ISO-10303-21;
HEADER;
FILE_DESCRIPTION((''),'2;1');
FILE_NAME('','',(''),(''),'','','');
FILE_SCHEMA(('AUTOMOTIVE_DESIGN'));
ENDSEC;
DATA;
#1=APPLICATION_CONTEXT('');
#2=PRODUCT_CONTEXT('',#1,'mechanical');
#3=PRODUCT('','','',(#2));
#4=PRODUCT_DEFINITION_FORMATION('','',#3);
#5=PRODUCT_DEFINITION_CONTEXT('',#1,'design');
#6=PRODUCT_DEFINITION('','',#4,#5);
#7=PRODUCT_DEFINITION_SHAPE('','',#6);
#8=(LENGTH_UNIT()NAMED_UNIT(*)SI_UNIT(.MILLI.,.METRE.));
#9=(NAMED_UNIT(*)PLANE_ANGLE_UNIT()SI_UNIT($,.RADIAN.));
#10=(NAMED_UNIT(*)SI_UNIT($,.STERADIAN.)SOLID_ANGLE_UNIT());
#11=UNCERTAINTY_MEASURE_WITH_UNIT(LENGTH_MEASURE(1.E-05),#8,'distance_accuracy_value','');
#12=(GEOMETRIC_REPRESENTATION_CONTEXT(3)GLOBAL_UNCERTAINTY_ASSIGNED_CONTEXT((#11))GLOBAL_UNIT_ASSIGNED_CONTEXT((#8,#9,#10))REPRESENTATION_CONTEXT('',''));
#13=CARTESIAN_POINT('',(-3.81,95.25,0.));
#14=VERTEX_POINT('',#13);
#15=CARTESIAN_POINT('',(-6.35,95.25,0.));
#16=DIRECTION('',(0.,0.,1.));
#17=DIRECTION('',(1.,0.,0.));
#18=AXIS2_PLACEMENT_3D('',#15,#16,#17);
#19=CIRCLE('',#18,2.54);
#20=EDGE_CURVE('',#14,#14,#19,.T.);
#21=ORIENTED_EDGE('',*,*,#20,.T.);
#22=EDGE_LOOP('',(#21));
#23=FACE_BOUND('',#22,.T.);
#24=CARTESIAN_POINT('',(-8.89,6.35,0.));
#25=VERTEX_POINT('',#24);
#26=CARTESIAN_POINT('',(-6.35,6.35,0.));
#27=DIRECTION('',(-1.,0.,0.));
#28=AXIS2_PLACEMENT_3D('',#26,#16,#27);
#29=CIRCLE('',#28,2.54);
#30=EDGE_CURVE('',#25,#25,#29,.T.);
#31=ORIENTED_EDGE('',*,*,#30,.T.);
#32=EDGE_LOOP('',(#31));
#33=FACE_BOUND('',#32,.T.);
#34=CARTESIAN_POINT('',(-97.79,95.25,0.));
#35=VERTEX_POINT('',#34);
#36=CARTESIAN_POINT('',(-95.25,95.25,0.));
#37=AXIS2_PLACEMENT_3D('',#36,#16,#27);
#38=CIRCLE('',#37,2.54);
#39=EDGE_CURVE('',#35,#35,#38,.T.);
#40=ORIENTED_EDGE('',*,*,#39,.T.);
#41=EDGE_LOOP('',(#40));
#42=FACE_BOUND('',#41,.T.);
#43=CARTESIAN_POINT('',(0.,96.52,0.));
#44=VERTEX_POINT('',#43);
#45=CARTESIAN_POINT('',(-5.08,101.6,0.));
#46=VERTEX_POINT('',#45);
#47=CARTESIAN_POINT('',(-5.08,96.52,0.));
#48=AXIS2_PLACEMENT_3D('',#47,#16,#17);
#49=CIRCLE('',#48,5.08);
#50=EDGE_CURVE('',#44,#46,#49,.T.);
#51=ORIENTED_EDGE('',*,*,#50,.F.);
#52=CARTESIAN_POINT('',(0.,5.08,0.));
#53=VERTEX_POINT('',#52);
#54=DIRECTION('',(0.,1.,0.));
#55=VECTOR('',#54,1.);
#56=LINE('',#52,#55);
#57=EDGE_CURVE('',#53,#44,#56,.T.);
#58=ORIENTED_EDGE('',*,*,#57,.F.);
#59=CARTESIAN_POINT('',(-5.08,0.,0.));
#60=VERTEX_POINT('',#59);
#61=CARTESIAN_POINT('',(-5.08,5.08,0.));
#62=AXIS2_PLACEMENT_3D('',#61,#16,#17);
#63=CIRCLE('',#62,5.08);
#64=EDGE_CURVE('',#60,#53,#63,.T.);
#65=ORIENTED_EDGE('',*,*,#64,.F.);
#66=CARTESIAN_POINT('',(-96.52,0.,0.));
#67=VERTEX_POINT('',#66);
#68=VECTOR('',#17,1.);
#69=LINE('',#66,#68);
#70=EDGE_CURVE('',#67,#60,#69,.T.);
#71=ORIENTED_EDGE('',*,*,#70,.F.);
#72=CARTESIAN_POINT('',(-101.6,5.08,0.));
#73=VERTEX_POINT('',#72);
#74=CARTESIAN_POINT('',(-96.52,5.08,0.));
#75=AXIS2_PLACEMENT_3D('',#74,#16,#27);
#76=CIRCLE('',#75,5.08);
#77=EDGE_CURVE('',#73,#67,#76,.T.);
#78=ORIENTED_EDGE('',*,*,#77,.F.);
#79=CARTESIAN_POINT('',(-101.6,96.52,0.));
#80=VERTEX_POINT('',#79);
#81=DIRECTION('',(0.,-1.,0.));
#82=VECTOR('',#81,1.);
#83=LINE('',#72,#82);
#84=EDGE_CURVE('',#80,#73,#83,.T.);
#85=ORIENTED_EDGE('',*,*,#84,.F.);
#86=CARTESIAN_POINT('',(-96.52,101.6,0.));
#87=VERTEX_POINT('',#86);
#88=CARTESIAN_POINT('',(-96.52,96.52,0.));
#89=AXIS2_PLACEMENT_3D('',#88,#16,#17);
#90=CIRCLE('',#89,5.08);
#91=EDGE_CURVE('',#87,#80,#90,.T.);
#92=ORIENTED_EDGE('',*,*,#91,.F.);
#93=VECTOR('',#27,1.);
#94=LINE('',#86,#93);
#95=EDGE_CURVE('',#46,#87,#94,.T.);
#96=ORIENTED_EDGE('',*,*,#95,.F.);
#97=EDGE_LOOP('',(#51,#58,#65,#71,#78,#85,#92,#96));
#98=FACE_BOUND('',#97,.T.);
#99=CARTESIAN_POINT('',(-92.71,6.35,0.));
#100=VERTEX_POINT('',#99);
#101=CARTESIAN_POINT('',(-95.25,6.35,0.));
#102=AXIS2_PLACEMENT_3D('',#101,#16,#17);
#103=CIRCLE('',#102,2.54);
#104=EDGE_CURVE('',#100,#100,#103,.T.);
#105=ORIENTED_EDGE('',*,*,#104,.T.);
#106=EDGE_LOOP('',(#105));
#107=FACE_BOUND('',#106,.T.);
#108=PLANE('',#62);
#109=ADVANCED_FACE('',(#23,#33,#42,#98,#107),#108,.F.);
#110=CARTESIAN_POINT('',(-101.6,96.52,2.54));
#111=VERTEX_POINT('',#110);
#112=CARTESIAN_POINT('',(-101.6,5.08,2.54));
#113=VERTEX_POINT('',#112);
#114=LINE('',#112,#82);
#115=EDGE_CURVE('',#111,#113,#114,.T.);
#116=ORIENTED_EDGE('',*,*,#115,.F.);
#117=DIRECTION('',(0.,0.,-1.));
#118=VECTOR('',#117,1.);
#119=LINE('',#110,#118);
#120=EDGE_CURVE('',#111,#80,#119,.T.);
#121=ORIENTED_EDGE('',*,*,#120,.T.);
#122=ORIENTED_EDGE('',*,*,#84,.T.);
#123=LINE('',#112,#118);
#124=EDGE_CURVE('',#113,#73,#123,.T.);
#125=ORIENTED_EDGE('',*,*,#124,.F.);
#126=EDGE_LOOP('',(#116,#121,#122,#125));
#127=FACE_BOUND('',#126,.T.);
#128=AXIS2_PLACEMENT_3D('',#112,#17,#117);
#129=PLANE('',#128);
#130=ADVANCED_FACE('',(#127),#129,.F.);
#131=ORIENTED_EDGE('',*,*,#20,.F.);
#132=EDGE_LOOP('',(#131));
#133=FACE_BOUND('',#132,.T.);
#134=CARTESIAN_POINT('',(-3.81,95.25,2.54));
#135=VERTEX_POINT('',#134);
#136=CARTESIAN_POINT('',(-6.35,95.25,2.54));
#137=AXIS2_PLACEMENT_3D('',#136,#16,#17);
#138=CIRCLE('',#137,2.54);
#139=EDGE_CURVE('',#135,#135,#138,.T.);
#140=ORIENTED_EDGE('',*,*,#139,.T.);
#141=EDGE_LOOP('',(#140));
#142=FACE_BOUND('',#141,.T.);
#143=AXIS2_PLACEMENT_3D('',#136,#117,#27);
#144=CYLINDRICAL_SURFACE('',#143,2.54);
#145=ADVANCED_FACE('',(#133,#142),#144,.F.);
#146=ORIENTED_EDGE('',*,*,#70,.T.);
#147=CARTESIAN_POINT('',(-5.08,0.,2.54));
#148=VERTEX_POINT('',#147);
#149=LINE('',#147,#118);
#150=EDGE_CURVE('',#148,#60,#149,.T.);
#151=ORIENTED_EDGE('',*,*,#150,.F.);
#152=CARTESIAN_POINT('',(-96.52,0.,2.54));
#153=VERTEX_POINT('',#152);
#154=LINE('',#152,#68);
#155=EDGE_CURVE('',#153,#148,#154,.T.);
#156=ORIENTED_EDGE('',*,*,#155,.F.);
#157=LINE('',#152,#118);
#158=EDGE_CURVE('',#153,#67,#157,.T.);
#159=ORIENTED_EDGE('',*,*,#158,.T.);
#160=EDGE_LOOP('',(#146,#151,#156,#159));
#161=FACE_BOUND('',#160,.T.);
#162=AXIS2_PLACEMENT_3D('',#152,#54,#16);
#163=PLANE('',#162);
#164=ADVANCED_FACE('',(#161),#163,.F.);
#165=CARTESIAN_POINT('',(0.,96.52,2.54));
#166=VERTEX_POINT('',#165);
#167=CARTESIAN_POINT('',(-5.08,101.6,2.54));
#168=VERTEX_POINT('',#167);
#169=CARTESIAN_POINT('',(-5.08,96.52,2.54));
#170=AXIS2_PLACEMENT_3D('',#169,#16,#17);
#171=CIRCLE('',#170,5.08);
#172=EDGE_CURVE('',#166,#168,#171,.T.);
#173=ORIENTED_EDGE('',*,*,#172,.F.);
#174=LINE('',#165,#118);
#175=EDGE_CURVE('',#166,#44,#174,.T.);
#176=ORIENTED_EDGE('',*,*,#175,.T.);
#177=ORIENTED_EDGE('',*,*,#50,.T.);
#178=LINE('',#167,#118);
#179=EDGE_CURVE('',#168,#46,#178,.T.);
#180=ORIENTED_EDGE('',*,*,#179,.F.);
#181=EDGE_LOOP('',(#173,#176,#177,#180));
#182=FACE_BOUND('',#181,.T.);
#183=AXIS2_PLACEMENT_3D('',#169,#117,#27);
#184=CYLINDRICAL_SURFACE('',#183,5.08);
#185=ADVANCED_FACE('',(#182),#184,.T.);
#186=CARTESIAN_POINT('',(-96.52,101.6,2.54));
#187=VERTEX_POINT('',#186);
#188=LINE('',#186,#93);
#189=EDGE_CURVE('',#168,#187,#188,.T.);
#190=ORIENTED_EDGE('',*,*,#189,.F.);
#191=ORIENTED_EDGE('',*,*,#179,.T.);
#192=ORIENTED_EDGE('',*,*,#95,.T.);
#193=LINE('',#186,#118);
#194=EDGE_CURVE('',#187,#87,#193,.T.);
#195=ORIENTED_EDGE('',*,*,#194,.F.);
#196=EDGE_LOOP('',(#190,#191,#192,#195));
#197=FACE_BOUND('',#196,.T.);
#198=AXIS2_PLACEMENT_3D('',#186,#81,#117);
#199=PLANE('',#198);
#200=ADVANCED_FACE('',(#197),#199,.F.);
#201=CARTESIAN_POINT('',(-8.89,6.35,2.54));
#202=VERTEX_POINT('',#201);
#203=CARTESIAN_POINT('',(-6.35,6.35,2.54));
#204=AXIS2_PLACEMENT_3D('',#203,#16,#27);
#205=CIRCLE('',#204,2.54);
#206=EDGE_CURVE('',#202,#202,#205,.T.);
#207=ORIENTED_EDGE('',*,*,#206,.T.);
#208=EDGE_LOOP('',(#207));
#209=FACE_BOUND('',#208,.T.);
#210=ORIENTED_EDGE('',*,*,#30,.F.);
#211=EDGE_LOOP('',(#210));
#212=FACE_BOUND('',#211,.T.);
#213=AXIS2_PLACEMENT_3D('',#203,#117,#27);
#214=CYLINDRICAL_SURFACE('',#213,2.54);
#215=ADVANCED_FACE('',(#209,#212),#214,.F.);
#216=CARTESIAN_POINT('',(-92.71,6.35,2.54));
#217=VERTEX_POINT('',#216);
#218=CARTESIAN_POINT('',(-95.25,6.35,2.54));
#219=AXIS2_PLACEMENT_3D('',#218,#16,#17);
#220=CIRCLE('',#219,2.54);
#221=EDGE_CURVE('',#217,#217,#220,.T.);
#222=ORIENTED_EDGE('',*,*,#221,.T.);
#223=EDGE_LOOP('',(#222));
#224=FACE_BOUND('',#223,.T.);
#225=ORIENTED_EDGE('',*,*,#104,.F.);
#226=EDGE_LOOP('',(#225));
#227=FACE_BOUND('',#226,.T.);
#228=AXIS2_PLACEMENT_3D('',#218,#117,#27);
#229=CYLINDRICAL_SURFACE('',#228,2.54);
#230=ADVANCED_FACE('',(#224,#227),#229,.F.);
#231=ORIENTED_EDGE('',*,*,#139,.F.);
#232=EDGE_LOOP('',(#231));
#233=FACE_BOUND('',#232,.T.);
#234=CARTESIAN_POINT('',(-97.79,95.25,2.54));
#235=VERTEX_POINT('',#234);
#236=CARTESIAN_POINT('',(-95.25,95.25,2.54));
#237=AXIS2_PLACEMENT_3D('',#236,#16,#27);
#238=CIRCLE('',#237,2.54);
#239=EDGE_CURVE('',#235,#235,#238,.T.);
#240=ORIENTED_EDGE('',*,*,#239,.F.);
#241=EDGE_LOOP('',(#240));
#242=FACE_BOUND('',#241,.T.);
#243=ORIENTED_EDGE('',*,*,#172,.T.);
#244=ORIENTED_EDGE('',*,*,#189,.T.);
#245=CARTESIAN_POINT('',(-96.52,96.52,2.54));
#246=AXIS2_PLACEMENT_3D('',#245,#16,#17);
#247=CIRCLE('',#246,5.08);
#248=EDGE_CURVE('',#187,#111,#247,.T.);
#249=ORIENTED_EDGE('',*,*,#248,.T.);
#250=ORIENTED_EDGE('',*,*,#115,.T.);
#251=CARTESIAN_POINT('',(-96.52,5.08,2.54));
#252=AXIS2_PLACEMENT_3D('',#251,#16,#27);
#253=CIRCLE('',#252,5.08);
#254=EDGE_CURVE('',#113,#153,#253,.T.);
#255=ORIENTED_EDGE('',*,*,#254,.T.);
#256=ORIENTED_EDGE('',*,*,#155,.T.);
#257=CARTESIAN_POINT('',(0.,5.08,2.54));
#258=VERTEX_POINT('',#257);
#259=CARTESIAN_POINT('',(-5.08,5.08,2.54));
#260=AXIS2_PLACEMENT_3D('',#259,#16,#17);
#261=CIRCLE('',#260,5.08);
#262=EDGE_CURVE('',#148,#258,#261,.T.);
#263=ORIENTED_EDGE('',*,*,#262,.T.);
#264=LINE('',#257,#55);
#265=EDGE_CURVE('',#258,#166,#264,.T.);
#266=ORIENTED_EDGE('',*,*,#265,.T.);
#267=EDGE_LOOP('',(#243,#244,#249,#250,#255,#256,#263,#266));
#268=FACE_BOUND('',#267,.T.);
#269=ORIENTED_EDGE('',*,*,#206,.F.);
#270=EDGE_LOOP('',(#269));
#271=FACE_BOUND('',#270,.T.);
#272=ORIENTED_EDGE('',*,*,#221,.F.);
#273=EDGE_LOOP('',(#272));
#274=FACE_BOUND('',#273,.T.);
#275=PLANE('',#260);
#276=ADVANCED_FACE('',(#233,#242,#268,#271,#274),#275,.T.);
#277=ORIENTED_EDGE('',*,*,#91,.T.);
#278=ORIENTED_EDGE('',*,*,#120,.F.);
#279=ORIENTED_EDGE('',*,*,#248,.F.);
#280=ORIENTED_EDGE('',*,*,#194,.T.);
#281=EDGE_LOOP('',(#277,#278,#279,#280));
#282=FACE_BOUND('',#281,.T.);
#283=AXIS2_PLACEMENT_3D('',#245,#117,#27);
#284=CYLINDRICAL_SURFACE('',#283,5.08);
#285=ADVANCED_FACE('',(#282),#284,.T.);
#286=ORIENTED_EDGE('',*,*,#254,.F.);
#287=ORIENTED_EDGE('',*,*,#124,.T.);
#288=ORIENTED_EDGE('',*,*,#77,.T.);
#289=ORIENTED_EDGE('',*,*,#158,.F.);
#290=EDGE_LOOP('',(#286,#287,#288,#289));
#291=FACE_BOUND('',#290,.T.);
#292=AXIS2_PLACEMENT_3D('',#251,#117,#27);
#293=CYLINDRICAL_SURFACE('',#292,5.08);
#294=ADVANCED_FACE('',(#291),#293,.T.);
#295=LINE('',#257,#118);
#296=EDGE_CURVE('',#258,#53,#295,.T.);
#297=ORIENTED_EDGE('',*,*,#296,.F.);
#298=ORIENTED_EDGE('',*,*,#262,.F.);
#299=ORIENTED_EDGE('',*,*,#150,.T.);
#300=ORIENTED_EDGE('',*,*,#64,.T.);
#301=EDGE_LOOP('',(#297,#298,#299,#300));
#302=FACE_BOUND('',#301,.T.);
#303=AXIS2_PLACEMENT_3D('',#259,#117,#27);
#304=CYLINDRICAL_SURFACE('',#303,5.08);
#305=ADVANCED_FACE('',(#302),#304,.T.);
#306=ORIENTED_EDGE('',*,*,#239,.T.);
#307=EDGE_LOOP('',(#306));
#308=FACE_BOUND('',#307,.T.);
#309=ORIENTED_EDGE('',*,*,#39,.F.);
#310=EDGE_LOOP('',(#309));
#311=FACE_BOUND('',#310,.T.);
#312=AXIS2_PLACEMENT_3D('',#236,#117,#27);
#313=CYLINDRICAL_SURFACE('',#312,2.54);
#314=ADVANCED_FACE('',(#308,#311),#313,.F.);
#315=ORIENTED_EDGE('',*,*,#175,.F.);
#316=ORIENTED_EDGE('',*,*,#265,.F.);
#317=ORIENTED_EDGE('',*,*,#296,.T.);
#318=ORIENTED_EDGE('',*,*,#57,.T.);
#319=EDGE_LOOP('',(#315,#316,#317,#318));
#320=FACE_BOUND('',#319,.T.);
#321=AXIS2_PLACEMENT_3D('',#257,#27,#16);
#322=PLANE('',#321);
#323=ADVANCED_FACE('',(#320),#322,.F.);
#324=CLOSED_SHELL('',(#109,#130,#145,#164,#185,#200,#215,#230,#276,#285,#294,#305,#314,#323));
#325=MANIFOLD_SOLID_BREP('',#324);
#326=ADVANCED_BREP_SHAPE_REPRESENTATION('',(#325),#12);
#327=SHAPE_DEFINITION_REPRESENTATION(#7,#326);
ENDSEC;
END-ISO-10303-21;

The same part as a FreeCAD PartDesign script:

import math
import FreeCAD as App
import Part
import Sketcher

V = App.Vector
Q = App.Units.Quantity

doc = App.newDocument("Part")
params = doc.addObject("Spreadsheet::Sheet", "Params")
for row, (alias, value) in enumerate([
    ("sketch1_radius", "0.2 in"),
    ("sketch1_width", "3.6 in"),
    ("pad1_length", "0.1 in"),
    ("sketch2_diameter", "0.2 in"),
    ("pocket1_length", "0.1 in"),
], start=1):
    params.set(f"A{row}", alias)
    params.set(f"B{row}", "=" + value)
    params.setAlias(f"B{row}", alias)

body = doc.addObject("PartDesign::Body", "Body")

# Sketch on XY plane
sketch1 = body.newObject("Sketcher::SketchObject", "Sketch")
sketch1.AttachmentSupport = (doc.getObject("XY_Plane"), [""])
sketch1.MapMode = "FlatFace"
sketch1.addGeometry([
    Part.LineSegment(V(-97, 0, 0), V(-5, 0, 0)),  # 0
    Part.ArcOfCircle(Part.Circle(V(-5, 5, 0), V(0, 0, 1), 5), math.radians(-90), math.radians(0)),  # 1
    Part.LineSegment(V(0, 5, 0), V(0, 97, 0)),  # 2
    Part.ArcOfCircle(Part.Circle(V(-5, 97, 0), V(0, 0, 1), 5), math.radians(0), math.radians(90)),  # 3
    Part.LineSegment(V(-5, 102, 0), V(-97, 102, 0)),  # 4
    Part.ArcOfCircle(Part.Circle(V(-97, 97, 0), V(0, 0, 1), 5), math.radians(90), math.radians(180)),  # 5
    Part.LineSegment(V(-102, 97, 0), V(-102, 5, 0)),  # 6
    Part.ArcOfCircle(Part.Circle(V(-97, 5, 0), V(0, 0, 1), 5), math.radians(-180), math.radians(-90)),  # 7
], False)
sketch1.addConstraint([
    Sketcher.Constraint("Tangent", 0, 2, 1, 1),
    Sketcher.Constraint("Tangent", 1, 2, 2, 1),
    Sketcher.Constraint("Tangent", 2, 2, 3, 1),
    Sketcher.Constraint("Tangent", 3, 2, 4, 1),
    Sketcher.Constraint("Tangent", 4, 2, 5, 1),
    Sketcher.Constraint("Tangent", 5, 2, 6, 1),
    Sketcher.Constraint("Tangent", 6, 2, 7, 1),
    Sketcher.Constraint("Tangent", 7, 2, 0, 1),
    Sketcher.Constraint("Horizontal", 0),
    Sketcher.Constraint("Vertical", 2),
    Sketcher.Constraint("Horizontal", 4),
    Sketcher.Constraint("Vertical", 6),
    Sketcher.Constraint("Equal", 1, 3),
    Sketcher.Constraint("Equal", 3, 5),
    Sketcher.Constraint("Equal", 5, 7),
    Sketcher.Constraint("PointOnObject", 0, 2, -1),
    Sketcher.Constraint("PointOnObject", 1, 2, -2),
    Sketcher.Constraint("Equal", 4, 2),
    Sketcher.Constraint("Radius", 1, Q("0.2 in")),
    Sketcher.Constraint("DistanceX", 0, 1, 0, 2, Q("3.6 in")),
])
sketch1.setExpression("Constraints[18]", "Params.sketch1_radius")
sketch1.setExpression("Constraints[19]", "Params.sketch1_width")
pad1 = body.newObject("PartDesign::Pad", "Pad")
pad1.Profile = sketch1
pad1.setExpression("Length", "Params.pad1_length")

# Sketch on XY plane
sketch2 = body.newObject("Sketcher::SketchObject", "Sketch001")
sketch2.AttachmentSupport = (doc.getObject("XY_Plane"), [""])
sketch2.MapMode = "FlatFace"
sketch2.addGeometry([
    Part.Circle(V(-95.2, 6.3, 0), V(0, 0, 1), 2.5),
    Part.Circle(V(-6.3, 6.3, 0), V(0, 0, 1), 2.5),
    Part.Circle(V(-6.3, 95.2, 0), V(0, 0, 1), 2.5),
    Part.Circle(V(-95.2, 95.2, 0), V(0, 0, 1), 2.5),
], False)
sketch2.addConstraint([
    Sketcher.Constraint("Equal", 0, 1),
    Sketcher.Constraint("Equal", 1, 2),
    Sketcher.Constraint("Equal", 2, 3),
    Sketcher.Constraint("Horizontal", 0, 3, 1, 3),
    Sketcher.Constraint("Horizontal", 2, 3, 3, 3),
    Sketcher.Constraint("Vertical", 1, 3, 2, 3),
    Sketcher.Constraint("Vertical", 0, 3, 3, 3),
    Sketcher.Constraint("Diameter", 0, Q("0.2 in")),
    Sketcher.Constraint("DistanceX", 0, 3, 1, 3, Q("3.5 in")),
    Sketcher.Constraint("DistanceY", 1, 3, 2, 3, Q("3.5 in")),
    Sketcher.Constraint("DistanceX", 0, 3, -1, 1, Q("3.75 in")),
    Sketcher.Constraint("DistanceY", -1, 1, 0, 3, Q("0.25 in")),
])
sketch2.setExpression("Constraints[7]", "Params.sketch2_diameter")
pocket1 = body.newObject("PartDesign::Pocket", "Pocket")
pocket1.Profile = sketch2
pocket1.setExpression("Length", "Params.pocket1_length")
pocket1.Reversed = True

doc.recompute()
